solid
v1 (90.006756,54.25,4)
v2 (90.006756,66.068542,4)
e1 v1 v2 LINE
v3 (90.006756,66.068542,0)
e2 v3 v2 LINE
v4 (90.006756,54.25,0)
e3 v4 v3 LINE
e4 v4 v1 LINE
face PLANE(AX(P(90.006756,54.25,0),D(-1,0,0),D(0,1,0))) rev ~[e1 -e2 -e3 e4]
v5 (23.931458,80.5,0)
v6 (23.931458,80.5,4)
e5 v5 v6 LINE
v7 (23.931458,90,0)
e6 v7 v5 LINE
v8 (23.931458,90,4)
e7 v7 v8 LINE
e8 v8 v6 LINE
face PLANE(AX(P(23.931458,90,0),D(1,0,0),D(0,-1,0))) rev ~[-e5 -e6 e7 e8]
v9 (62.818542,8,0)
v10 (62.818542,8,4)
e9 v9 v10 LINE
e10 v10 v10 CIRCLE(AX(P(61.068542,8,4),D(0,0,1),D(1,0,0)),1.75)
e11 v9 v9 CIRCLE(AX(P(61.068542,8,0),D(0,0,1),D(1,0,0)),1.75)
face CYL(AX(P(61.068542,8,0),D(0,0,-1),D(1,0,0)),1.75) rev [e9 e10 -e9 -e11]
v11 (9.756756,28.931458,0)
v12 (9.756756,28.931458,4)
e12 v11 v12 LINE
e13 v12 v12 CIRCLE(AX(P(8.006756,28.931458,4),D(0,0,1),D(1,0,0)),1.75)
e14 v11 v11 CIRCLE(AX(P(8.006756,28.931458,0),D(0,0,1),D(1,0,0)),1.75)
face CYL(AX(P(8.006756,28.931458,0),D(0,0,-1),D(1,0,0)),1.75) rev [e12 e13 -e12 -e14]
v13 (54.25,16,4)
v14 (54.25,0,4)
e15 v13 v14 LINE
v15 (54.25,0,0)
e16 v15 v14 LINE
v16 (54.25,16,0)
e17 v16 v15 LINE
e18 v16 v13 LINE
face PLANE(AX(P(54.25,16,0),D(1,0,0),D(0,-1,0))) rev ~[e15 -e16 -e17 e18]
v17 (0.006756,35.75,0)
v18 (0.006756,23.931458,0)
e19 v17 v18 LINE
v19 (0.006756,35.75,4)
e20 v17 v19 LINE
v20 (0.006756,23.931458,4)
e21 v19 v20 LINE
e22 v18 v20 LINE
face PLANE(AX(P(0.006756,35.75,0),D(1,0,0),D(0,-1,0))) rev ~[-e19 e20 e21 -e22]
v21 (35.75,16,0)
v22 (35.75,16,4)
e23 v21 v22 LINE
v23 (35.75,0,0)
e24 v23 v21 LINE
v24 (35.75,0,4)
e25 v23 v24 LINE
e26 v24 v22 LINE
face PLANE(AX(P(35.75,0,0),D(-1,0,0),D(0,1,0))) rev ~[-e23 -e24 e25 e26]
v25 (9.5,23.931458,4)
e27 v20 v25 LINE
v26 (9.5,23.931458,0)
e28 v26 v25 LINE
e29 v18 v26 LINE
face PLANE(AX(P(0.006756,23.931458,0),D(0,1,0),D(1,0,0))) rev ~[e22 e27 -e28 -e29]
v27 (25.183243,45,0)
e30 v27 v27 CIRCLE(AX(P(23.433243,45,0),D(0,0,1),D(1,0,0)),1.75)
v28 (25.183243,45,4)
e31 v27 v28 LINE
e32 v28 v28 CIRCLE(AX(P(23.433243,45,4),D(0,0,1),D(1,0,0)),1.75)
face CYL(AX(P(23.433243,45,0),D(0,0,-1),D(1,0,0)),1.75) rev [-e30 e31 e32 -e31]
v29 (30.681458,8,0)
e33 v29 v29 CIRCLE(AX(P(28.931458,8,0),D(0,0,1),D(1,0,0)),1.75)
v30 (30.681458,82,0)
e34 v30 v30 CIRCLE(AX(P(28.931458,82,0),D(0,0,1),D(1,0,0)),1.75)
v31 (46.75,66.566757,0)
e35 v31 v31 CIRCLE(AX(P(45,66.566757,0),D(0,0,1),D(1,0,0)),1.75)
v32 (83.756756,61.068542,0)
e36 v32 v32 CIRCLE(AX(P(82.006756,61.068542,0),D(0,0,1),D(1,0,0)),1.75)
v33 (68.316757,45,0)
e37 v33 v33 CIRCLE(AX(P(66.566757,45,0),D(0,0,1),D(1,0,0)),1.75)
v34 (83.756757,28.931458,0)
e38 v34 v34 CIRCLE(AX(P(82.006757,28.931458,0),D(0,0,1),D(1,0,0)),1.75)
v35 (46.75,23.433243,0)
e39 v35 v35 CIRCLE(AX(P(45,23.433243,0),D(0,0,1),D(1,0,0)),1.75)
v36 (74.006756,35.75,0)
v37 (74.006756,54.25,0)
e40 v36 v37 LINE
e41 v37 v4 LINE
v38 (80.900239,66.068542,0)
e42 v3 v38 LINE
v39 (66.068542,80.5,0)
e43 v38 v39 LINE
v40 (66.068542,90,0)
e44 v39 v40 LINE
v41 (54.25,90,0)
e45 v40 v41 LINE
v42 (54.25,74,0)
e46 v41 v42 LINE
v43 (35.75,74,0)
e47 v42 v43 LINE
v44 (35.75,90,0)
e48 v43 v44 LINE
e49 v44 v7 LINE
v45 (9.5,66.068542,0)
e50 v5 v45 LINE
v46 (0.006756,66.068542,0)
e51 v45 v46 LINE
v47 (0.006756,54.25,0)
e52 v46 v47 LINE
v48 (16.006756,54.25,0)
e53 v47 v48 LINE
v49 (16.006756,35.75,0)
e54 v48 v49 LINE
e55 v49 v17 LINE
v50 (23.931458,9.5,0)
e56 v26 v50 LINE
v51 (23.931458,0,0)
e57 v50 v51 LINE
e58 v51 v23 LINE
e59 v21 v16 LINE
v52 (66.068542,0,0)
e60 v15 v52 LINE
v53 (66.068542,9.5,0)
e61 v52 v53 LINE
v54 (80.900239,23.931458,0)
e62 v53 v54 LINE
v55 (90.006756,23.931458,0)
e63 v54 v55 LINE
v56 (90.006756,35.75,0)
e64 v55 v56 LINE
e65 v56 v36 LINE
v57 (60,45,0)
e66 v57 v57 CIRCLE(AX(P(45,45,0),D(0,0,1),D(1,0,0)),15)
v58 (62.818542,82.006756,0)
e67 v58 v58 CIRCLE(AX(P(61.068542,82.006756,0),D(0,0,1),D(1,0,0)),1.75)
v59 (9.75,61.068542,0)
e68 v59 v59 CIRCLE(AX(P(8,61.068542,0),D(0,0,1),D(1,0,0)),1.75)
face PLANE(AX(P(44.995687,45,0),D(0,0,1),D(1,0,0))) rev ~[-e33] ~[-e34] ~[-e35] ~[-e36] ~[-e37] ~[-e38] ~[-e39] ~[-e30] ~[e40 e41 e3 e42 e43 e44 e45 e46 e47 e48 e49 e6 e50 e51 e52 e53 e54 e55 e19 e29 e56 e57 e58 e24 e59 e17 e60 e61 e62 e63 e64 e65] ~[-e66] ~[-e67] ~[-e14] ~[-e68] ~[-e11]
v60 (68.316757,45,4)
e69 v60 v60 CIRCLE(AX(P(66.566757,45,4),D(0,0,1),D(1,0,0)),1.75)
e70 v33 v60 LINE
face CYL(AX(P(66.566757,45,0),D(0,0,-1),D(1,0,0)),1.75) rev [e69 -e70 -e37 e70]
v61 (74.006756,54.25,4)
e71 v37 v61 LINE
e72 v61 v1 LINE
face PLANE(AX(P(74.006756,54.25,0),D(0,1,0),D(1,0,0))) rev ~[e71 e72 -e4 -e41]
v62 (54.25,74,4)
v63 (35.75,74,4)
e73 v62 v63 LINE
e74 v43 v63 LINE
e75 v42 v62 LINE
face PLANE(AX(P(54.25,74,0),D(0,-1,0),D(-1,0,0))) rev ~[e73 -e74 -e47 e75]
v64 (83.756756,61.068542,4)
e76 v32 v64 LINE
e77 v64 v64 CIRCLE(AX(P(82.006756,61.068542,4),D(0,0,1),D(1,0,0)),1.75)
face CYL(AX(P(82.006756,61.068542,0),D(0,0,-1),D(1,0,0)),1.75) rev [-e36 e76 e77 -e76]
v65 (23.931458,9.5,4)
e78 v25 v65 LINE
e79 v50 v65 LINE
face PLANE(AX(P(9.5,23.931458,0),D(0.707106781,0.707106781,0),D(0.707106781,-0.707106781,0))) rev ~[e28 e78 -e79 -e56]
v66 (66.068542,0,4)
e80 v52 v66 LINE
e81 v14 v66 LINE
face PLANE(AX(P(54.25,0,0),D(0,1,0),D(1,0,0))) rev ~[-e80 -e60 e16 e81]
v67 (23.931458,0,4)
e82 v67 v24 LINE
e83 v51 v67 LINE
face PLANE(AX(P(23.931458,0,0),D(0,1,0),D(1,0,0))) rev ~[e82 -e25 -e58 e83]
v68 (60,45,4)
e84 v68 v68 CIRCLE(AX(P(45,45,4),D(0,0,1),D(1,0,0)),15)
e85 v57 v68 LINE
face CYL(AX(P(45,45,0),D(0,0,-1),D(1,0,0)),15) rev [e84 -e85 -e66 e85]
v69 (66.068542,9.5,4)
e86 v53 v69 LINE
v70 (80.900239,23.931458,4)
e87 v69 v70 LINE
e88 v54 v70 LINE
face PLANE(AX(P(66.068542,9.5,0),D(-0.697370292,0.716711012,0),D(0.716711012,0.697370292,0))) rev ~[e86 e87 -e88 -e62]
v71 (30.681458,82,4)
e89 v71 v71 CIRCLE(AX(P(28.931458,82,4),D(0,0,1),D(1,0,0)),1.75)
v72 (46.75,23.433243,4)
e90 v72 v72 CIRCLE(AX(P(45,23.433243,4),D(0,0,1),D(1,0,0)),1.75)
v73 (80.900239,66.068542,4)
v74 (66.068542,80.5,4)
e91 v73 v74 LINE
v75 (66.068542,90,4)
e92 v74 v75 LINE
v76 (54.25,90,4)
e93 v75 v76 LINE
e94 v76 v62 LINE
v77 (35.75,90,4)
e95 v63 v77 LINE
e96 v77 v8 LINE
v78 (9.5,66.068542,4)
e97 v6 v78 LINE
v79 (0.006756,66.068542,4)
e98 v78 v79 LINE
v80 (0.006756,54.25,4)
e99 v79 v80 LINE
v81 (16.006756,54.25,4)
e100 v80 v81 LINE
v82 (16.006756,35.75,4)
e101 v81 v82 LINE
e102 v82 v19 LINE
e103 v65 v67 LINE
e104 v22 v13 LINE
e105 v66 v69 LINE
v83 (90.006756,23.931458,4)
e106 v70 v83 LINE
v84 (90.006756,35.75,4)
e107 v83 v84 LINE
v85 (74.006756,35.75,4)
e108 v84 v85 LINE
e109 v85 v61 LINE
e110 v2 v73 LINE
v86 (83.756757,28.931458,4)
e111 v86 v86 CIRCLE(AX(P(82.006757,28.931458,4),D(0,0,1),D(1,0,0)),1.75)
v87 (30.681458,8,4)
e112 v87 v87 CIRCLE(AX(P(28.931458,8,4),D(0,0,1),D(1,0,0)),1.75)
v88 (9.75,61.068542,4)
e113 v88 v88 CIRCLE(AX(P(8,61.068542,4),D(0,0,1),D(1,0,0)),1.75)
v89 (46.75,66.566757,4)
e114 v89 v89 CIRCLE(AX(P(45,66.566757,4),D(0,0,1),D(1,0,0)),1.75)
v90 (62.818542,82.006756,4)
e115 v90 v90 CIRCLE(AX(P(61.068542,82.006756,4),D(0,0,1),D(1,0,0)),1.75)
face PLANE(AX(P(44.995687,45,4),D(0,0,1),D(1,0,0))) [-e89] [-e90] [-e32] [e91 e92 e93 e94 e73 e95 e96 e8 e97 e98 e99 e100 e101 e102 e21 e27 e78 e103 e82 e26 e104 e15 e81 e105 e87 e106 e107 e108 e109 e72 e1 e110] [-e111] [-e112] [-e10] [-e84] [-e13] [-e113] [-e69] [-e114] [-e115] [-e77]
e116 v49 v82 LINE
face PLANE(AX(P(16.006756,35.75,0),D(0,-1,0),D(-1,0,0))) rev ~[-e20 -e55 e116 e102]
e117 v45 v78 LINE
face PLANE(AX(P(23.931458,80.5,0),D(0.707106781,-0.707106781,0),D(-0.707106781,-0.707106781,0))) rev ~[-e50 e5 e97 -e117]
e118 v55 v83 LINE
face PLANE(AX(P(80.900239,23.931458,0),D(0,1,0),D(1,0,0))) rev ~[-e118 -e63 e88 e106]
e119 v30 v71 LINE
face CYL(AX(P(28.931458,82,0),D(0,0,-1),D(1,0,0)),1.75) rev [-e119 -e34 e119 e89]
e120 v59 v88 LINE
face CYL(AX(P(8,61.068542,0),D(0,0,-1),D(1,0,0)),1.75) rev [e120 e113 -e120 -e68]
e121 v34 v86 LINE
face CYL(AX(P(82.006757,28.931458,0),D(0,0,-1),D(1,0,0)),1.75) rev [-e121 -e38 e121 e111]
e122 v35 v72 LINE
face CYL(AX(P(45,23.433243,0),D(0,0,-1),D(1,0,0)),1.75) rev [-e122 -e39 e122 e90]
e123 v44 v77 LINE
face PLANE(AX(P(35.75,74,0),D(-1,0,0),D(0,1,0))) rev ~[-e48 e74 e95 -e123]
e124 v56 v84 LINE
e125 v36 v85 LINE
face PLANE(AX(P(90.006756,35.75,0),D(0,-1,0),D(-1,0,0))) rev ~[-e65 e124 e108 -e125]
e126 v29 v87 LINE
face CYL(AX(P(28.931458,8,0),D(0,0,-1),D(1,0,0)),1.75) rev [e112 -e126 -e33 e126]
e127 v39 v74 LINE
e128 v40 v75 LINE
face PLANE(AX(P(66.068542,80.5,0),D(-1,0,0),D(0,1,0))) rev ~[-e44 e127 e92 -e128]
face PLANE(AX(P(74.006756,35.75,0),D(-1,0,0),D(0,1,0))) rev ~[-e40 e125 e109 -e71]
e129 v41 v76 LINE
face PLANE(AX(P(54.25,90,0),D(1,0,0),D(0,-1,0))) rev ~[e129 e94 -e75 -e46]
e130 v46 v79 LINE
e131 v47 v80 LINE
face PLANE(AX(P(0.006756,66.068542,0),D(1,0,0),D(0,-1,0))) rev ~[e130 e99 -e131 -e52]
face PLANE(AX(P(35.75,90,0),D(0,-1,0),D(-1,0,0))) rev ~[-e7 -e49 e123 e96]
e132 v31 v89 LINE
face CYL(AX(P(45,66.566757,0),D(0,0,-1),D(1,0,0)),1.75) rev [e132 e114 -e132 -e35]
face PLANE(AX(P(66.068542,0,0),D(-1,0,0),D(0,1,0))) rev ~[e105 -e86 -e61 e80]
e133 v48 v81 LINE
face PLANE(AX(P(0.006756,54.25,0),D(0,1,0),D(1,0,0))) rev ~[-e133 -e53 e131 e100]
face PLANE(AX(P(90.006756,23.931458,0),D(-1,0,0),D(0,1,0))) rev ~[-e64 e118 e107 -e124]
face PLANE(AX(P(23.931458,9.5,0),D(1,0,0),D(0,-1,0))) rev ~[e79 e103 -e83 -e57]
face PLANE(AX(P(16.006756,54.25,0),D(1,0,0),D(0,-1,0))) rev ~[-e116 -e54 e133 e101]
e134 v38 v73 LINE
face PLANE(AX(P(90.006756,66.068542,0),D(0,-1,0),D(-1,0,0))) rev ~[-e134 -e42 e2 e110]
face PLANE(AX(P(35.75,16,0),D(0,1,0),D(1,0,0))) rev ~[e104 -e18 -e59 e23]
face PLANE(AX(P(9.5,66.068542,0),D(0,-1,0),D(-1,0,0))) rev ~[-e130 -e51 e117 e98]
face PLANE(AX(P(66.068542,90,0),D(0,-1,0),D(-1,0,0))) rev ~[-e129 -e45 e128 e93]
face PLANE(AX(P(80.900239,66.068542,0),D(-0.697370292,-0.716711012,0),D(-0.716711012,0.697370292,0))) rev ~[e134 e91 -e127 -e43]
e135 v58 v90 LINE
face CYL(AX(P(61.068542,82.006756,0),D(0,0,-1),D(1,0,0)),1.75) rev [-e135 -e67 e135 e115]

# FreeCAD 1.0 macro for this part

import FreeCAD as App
import Part
import Sketcher
from FreeCAD import Vector

doc = App.newDocument("Part")
params = doc.addObject("Spreadsheet::Sheet", "Params")
for row, (alias, value) in enumerate([
    ("sketch1_diameter", "30 mm"),
    ("sketch1_diameter2", "3.5 mm"),
    ("sketch1_width", "16 mm"),
    ("sketch1_width2", "18.5 mm"),
    ("sketch1_height", "9.5 mm"),
    ("pad1_length", "4 mm"),
], start=1):
    params.set(f"A{row}", alias)
    params.set(f"B{row}", "=" + value)
    params.setAlias(f"B{row}", alias)

body = doc.addObject("PartDesign::Body", "Body")

sketch1 = doc.addObject("Sketcher::SketchObject", "Sketch")
body.addObject(sketch1)
sketch1.AttachmentSupport = (doc.XY_Plane, [""])
sketch1.MapMode = "FlatFace"
sketch1.addGeometry([
    Part.LineSegment(Vector(23.9, 9.5, 0), Vector(23.9, 0, 0)),
    Part.LineSegment(Vector(23.9, 0, 0), Vector(35.8, 0, 0)),
    Part.LineSegment(Vector(35.8, 0, 0), Vector(35.8, 16, 0)),
    Part.LineSegment(Vector(35.8, 16, 0), Vector(54.2, 16, 0)),
    Part.LineSegment(Vector(54.2, 16, 0), Vector(54.2, 0, 0)),
    Part.LineSegment(Vector(54.2, 0, 0), Vector(66.1, 0, 0)),
    Part.LineSegment(Vector(66.1, 0, 0), Vector(66.1, 9.5, 0)),
    Part.LineSegment(Vector(66.1, 9.5, 0), Vector(80.9, 23.9, 0)),
    Part.LineSegment(Vector(80.9, 23.9, 0), Vector(90, 23.9, 0)),
    Part.LineSegment(Vector(90, 23.9, 0), Vector(90, 35.8, 0)),
    Part.LineSegment(Vector(90, 35.8, 0), Vector(74, 35.8, 0)),
    Part.LineSegment(Vector(74, 35.8, 0), Vector(74, 54.2, 0)),
    Part.LineSegment(Vector(74, 54.2, 0), Vector(90, 54.2, 0)),
    Part.LineSegment(Vector(90, 54.2, 0), Vector(90, 66.1, 0)),
    Part.LineSegment(Vector(90, 66.1, 0), Vector(80.9, 66.1, 0)),
    Part.LineSegment(Vector(80.9, 66.1, 0), Vector(66.1, 80.5, 0)),
    Part.LineSegment(Vector(66.1, 80.5, 0), Vector(66.1, 90, 0)),
    Part.LineSegment(Vector(66.1, 90, 0), Vector(54.2, 90, 0)),
    Part.LineSegment(Vector(54.2, 90, 0), Vector(54.2, 74, 0)),
    Part.LineSegment(Vector(54.2, 74, 0), Vector(35.8, 74, 0)),
    Part.LineSegment(Vector(35.8, 74, 0), Vector(35.8, 90, 0)),
    Part.LineSegment(Vector(35.8, 90, 0), Vector(23.9, 90, 0)),
    Part.LineSegment(Vector(23.9, 90, 0), Vector(23.9, 80.5, 0)),
    Part.LineSegment(Vector(23.9, 80.5, 0), Vector(9.5, 66.1, 0)),
    Part.LineSegment(Vector(9.5, 66.1, 0), Vector(0, 66.1, 0)),
    Part.LineSegment(Vector(0, 66.1, 0), Vector(0, 54.2, 0)),
    Part.LineSegment(Vector(0, 54.2, 0), Vector(16, 54.2, 0)),
    Part.LineSegment(Vector(16, 54.2, 0), Vector(16, 35.8, 0)),
    Part.LineSegment(Vector(16, 35.8, 0), Vector(0, 35.8, 0)),
    Part.LineSegment(Vector(0, 35.8, 0), Vector(0, 23.9, 0)),
    Part.LineSegment(Vector(0, 23.9, 0), Vector(9.5, 23.9, 0)),
    Part.LineSegment(Vector(9.5, 23.9, 0), Vector(23.9, 9.5, 0)),
    Part.Circle(Vector(28.9, 8, 0), Vector(0, 0, 1), 1.8),
    Part.Circle(Vector(45, 23.4, 0), Vector(0, 0, 1), 1.8),
    Part.Circle(Vector(8, 28.9, 0), Vector(0, 0, 1), 1.8),
    Part.Circle(Vector(23.4, 45, 0), Vector(0, 0, 1), 1.8),
    Part.Circle(Vector(45, 45, 0), Vector(0, 0, 1), 15),
    Part.Circle(Vector(61.1, 8, 0), Vector(0, 0, 1), 1.8),
    Part.Circle(Vector(82, 28.9, 0), Vector(0, 0, 1), 1.8),
    Part.Circle(Vector(66.6, 45, 0), Vector(0, 0, 1), 1.8),
    Part.Circle(Vector(8, 61.1, 0), Vector(0, 0, 1), 1.8),
    Part.Circle(Vector(45, 66.6, 0), Vector(0, 0, 1), 1.8),
    Part.Circle(Vector(28.9, 82, 0), Vector(0, 0, 1), 1.8),
    Part.Circle(Vector(82, 61.1, 0), Vector(0, 0, 1), 1.8),
    Part.Circle(Vector(61.1, 82, 0), Vector(0, 0, 1), 1.8),
], False)
sketch1.addConstraint([
    Sketcher.Constraint("Coincident", 0, 2, 1, 1),
    Sketcher.Constraint("Coincident", 1, 2, 2, 1),
    Sketcher.Constraint("Coincident", 2, 2, 3, 1),
    Sketcher.Constraint("Coincident", 3, 2, 4, 1),
    Sketcher.Constraint("Coincident", 4, 2, 5, 1),
    Sketcher.Constraint("Coincident", 5, 2, 6, 1),
    Sketcher.Constraint("Coincident", 6, 2, 7, 1),
    Sketcher.Constraint("Coincident", 7, 2, 8, 1),
    Sketcher.Constraint("Coincident", 8, 2, 9, 1),
    Sketcher.Constraint("Coincident", 9, 2, 10, 1),
    Sketcher.Constraint("Coincident", 10, 2, 11, 1),
    Sketcher.Constraint("Coincident", 11, 2, 12, 1),
    Sketcher.Constraint("Coincident", 12, 2, 13, 1),
    Sketcher.Constraint("Coincident", 13, 2, 14, 1),
    Sketcher.Constraint("Coincident", 14, 2, 15, 1),
    Sketcher.Constraint("Coincident", 15, 2, 16, 1),
    Sketcher.Constraint("Coincident", 16, 2, 17, 1),
    Sketcher.Constraint("Coincident", 17, 2, 18, 1),
    Sketcher.Constraint("Coincident", 18, 2, 19, 1),
    Sketcher.Constraint("Coincident", 19, 2, 20, 1),
    Sketcher.Constraint("Coincident", 20, 2, 21, 1),
    Sketcher.Constraint("Coincident", 21, 2, 22, 1),
    Sketcher.Constraint("Coincident", 22, 2, 23, 1),
    Sketcher.Constraint("Coincident", 23, 2, 24, 1),
    Sketcher.Constraint("Coincident", 24, 2, 25, 1),
    Sketcher.Constraint("Coincident", 25, 2, 26, 1),
    Sketcher.Constraint("Coincident", 26, 2, 27, 1),
    Sketcher.Constraint("Coincident", 27, 2, 28, 1),
    Sketcher.Constraint("Coincident", 28, 2, 29, 1),
    Sketcher.Constraint("Coincident", 29, 2, 30, 1),
    Sketcher.Constraint("Coincident", 30, 2, 31, 1),
    Sketcher.Constraint("Coincident", 31, 2, 0, 1),
    Sketcher.Constraint("Vertical", 0),
    Sketcher.Constraint("Horizontal", 1),
    Sketcher.Constraint("Vertical", 2),
    Sketcher.Constraint("Horizontal", 3),
    Sketcher.Constraint("Vertical", 4),
    Sketcher.Constraint("Horizontal", 5),
    Sketcher.Constraint("Vertical", 6),
    Sketcher.Constraint("Horizontal", 8),
    Sketcher.Constraint("Vertical", 9),
    Sketcher.Constraint("Horizontal", 10),
    Sketcher.Constraint("Vertical", 11),
    Sketcher.Constraint("Horizontal", 12),
    Sketcher.Constraint("Vertical", 13),
    Sketcher.Constraint("Horizontal", 14),
    Sketcher.Constraint("Vertical", 16),
    Sketcher.Constraint("Horizontal", 17),
    Sketcher.Constraint("Vertical", 18),
    Sketcher.Constraint("Horizontal", 19),
    Sketcher.Constraint("Vertical", 20),
    Sketcher.Constraint("Horizontal", 21),
    Sketcher.Constraint("Vertical", 22),
    Sketcher.Constraint("Horizontal", 24),
    Sketcher.Constraint("Vertical", 25),
    Sketcher.Constraint("Horizontal", 26),
    Sketcher.Constraint("Vertical", 27),
    Sketcher.Constraint("Horizontal", 28),
    Sketcher.Constraint("Vertical", 29),
    Sketcher.Constraint("Horizontal", 30),
    Sketcher.Constraint("Equal", 32, 33),
    Sketcher.Constraint("Equal", 33, 34),
    Sketcher.Constraint("Equal", 34, 35),
    Sketcher.Constraint("Equal", 35, 37),
    Sketcher.Constraint("Equal", 37, 38),
    Sketcher.Constraint("Equal", 38, 39),
    Sketcher.Constraint("Equal", 39, 40),
    Sketcher.Constraint("Equal", 40, 41),
    Sketcher.Constraint("Equal", 41, 42),
    Sketcher.Constraint("Equal", 42, 43),
    Sketcher.Constraint("Equal", 43, 44),
    Sketcher.Constraint("PointOnObject", 0, 2, -1),
    Sketcher.Constraint("PointOnObject", 4, 2, -1),
    Sketcher.Constraint("Perpendicular", 23, 31),
    Sketcher.Constraint("Horizontal", 35, 3, 36, 3),
    Sketcher.Constraint("Horizontal", 32, 3, 37, 3),
    Sketcher.Constraint("Horizontal", 34, 3, 38, 3),
    Sketcher.Constraint("Horizontal", 36, 3, 39, 3),
    Sketcher.Constraint("Horizontal", 40, 3, 43, 3),
    Sketcher.Constraint("Horizontal", 17, 2, 20, 2),
    Sketcher.Constraint("Horizontal", 15, 2, 22, 2),
    Sketcher.Constraint("Horizontal", 14, 2, 23, 2),
    Sketcher.Constraint("Horizontal", 12, 2, 25, 2),
    Sketcher.Constraint("Horizontal", 10, 2, 27, 2),
    Sketcher.Constraint("Horizontal", 8, 2, 29, 2),
    Sketcher.Constraint("Horizontal", 6, 2, 31, 2),
    Sketcher.Constraint("Vertical", 33, 3, 36, 3),
    Sketcher.Constraint("Vertical", 36, 3, 41, 3),
    Sketcher.Constraint("Vertical", 32, 3, 42, 3),
    Sketcher.Constraint("Vertical", 38, 3, 43, 3),
    Sketcher.Constraint("Vertical", 37, 3, 44, 3),
    Sketcher.Constraint("Vertical", 9, 2, 12, 2),
    Sketcher.Constraint("Vertical", 7, 2, 14, 2),
    Sketcher.Constraint("Vertical", 6, 2, 15, 2),
    Sketcher.Constraint("Vertical", 4, 2, 17, 2),
    Sketcher.Constraint("Vertical", 2, 2, 19, 2),
    Sketcher.Constraint("Vertical", 0, 2, 21, 2),
    Sketcher.Constraint("Vertical", 25, 2, 28, 2),
    Sketcher.Constraint("Vertical", 23, 2, 30, 2),
    Sketcher.Constraint("Equal", 1, 5),
    Sketcher.Constraint("Equal", 12, 26),
    Sketcher.Constraint("Equal", 28, 2),
    Sketcher.Constraint("Equal", 21, 9),
    Sketcher.Constraint("Equal", 19, 11),
    Sketcher.Constraint("Equal", 9, 13),
    Sketcher.Constraint("Equal", 6, 16),
    Sketcher.Constraint("Equal", 4, 18),
    Sketcher.Constraint("Equal", 7, 15),
    Sketcher.Constraint("Diameter", 36, 30.0),
    Sketcher.Constraint("Diameter", 32, 3.5),
    Sketcher.Constraint("DistanceX", 10, 2, 10, 1, 16.0),
    Sketcher.Constraint("DistanceX", 3, 1, 3, 2, 18.5),
    Sketcher.Constraint("DistanceY", 0, 2, 0, 1, 9.5),
    Sketcher.Constraint("DistanceY", -1, 1, 32, 3, 8.0),
    Sketcher.Constraint("DistanceX", -1, 1, 33, 3, 45.0),
    Sketcher.Constraint("DistanceY", -1, 1, 35, 3, 45.0),
    Sketcher.Constraint("DistanceX", -1, 1, 40, 3, 8.0),
    Sketcher.Constraint("DistanceY", -1, 1, 42, 3, 82.0),
    Sketcher.Constraint("DistanceY", -1, 1, 16, 2, 90.0),
    Sketcher.Constraint("DistanceX", 0, 2, 32, 3, 5.0),
    Sketcher.Constraint("DistanceX", 37, 3, 5, 2, 5.0),
    Sketcher.Constraint("DistanceY", 7, 2, 38, 3, 5.0),
    Sketcher.Constraint("DistanceX", 38, 3, 8, 2, 7.999999),
    Sketcher.Constraint("DistanceY", 43, 3, 13, 2, 5.0),
    Sketcher.Constraint("DistanceX", 25, 2, 34, 3, 8.0),
    Sketcher.Constraint("DistanceX", -1, 1, 23, 2, 9.5),
    Sketcher.Constraint("DistanceX", 39, 3, 38, 3, 15.44),
    Sketcher.Constraint("DistanceY", 41, 3, 44, 3, 15.439999),
    Sketcher.Constraint("DistanceX", 5, 1, 5, 2, 11.818542),
    Sketcher.Constraint("DistanceX", 34, 3, 32, 3, 20.924702),
    Sketcher.Constraint("DistanceX", 35, 3, 37, 3, 37.635299),
    Sketcher.Constraint("DistanceX", 32, 3, 38, 3, 53.075299),
    Sketcher.Constraint("DistanceY", 33, 3, 40, 3, 37.635299),
    Sketcher.Constraint("Distance", 7, 20.694111),
    Sketcher.Constraint("DistanceY", -1, 1, 41, 3, 66.566757),
])
sketch1.setExpression("Constraints[108]", "Params.sketch1_diameter")
sketch1.setExpression("Constraints[109]", "Params.sketch1_diameter2")
sketch1.setExpression("Constraints[110]", "Params.sketch1_width")
sketch1.setExpression("Constraints[111]", "Params.sketch1_width2")
sketch1.setExpression("Constraints[112]", "Params.sketch1_height")
pad1 = doc.addObject("PartDesign::Pad", "Pad")
body.addObject(pad1)
pad1.Profile = sketch1
pad1.setExpression("Length", "Params.pad1_length")

doc.recompute()
